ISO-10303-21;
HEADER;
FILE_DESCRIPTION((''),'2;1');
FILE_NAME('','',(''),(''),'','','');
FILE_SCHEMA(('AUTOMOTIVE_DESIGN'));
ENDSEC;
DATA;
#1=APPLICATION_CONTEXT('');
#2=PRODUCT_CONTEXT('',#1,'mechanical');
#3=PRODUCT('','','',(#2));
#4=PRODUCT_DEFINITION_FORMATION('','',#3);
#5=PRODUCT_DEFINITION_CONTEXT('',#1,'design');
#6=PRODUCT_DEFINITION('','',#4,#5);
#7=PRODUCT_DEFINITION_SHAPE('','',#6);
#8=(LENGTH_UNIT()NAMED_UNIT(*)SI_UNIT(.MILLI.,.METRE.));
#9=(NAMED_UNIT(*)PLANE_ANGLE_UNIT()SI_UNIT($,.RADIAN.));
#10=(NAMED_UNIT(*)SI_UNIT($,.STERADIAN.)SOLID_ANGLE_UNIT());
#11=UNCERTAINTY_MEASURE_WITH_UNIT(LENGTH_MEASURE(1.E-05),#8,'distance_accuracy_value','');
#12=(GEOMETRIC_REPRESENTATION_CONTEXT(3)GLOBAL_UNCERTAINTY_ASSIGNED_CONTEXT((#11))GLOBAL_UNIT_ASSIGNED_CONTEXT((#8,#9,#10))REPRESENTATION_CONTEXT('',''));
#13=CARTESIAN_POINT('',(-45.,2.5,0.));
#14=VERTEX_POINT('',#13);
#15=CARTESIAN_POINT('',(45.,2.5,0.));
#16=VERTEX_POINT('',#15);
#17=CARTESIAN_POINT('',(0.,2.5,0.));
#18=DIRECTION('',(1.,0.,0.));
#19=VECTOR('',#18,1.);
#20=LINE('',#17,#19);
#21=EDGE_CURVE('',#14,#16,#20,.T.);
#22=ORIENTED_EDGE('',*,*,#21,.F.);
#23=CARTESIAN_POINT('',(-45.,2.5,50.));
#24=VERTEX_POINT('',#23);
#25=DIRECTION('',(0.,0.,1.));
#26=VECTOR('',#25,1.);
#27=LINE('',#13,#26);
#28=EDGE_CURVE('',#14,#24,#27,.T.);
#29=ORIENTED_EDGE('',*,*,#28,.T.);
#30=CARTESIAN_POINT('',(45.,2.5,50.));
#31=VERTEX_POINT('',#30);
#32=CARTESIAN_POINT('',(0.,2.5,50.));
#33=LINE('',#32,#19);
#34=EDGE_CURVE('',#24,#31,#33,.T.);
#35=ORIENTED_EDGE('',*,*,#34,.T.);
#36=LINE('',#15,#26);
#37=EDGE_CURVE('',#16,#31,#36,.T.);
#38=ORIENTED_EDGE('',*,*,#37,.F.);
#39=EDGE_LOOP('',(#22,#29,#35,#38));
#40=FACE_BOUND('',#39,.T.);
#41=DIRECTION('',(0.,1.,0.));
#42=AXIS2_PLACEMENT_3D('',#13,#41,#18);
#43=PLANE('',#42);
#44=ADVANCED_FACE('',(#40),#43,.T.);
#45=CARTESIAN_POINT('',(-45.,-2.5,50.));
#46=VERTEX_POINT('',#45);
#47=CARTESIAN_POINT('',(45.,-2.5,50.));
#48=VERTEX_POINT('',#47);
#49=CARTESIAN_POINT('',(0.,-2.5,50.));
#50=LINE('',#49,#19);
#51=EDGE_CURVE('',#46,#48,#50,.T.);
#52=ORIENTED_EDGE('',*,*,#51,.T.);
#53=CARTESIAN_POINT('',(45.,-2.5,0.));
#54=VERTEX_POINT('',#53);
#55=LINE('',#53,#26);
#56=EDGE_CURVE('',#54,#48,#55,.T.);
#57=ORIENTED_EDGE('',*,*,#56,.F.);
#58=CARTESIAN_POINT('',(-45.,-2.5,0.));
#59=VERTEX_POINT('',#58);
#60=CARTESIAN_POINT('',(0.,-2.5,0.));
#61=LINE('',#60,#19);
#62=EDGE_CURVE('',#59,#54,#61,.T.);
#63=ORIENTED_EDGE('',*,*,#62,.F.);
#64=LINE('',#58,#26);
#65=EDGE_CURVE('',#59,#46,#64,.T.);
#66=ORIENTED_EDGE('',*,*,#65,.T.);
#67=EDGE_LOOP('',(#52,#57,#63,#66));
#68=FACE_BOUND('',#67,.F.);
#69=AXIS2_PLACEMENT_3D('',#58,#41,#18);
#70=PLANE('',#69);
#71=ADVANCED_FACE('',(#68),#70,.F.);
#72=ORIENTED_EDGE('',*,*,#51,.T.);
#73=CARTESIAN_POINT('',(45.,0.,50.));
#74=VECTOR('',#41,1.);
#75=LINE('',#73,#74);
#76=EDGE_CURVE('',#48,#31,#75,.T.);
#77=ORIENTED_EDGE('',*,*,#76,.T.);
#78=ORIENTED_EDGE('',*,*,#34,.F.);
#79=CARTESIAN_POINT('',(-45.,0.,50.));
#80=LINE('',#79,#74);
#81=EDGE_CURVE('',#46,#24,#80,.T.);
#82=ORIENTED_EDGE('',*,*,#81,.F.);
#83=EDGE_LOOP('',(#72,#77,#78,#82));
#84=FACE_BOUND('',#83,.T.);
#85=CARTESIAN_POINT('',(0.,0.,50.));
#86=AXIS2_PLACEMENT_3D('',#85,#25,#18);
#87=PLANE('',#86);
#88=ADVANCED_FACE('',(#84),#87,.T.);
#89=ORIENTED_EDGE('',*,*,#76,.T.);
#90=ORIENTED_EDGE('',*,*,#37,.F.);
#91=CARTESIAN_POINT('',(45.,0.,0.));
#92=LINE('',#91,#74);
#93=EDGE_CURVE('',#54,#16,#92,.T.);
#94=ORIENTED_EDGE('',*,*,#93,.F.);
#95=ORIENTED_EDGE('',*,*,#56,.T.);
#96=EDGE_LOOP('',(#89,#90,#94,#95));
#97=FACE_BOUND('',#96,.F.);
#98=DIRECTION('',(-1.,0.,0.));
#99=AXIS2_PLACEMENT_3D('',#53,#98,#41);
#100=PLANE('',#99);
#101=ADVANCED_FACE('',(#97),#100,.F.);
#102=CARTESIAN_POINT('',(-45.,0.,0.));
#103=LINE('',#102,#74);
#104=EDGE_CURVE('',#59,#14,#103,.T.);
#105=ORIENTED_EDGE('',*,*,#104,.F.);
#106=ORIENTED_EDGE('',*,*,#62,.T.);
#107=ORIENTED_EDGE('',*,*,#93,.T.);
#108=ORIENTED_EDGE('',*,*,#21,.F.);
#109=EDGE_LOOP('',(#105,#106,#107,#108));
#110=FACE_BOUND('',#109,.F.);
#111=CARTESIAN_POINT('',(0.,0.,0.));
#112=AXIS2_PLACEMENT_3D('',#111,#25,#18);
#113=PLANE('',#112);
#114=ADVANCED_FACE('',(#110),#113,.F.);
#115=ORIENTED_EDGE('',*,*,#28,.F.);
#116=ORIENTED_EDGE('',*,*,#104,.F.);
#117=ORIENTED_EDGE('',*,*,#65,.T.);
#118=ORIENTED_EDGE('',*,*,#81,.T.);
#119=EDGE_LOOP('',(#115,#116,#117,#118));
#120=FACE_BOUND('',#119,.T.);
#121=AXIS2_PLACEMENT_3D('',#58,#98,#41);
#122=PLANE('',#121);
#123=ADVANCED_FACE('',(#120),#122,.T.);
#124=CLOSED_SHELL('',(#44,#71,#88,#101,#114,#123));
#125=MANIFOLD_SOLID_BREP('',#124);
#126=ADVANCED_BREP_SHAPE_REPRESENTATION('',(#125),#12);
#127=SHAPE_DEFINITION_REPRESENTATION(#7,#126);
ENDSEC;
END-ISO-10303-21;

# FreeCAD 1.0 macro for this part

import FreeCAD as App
import Part
import Sketcher
from FreeCAD import Vector
Q = App.Units.Quantity

doc = App.newDocument("Part")
params = doc.addObject("Spreadsheet::Sheet", "Params")
for row, (alias, value) in enumerate([
    ("sketch1_width", "90 mm"),
    ("sketch1_height", "5 mm"),
    ("pad1_length", "50 mm"),
], start=1):
    params.set(f"A{row}", alias)
    params.set(f"B{row}", "=" + value)
    params.setAlias(f"B{row}", alias)

body = doc.addObject("PartDesign::Body", "Body")

# Sketch on XY plane
sketch1 = body.newObject("Sketcher::SketchObject", "Sketch")
sketch1.AttachmentSupport = (doc.getObject("XY_Plane"), [""])
sketch1.MapMode = "FlatFace"
sketch1.addGeometry([
    Part.LineSegment(Vector(-45, 2.5, 0), Vector(-45, -2.5, 0)),
    Part.LineSegment(Vector(-45, -2.5, 0), Vector(45, -2.5, 0)),
    Part.LineSegment(Vector(45, -2.5, 0), Vector(45, 2.5, 0)),
    Part.LineSegment(Vector(45, 2.5, 0), Vector(-45, 2.5, 0)),
], False)
sketch1.addConstraint([
    Sketcher.Constraint("Coincident", 0, 2, 1, 1),
    Sketcher.Constraint("Coincident", 1, 2, 2, 1),
    Sketcher.Constraint("Coincident", 2, 2, 3, 1),
    Sketcher.Constraint("Coincident", 3, 2, 0, 1),
    Sketcher.Constraint("Vertical", 0),
    Sketcher.Constraint("Horizontal", 1),
    Sketcher.Constraint("Vertical", 2),
    Sketcher.Constraint("Horizontal", 3),
    Sketcher.Constraint("Symmetric", 0, 2, 2, 2, -1, 1),
    Sketcher.Constraint("DistanceX", 1, 1, 1, 2, Q("90 mm")),
    Sketcher.Constraint("DistanceY", 0, 2, 0, 1, Q("5 mm")),
])
sketch1.setExpression("Constraints[9]", "Params.sketch1_width")
sketch1.setExpression("Constraints[10]", "Params.sketch1_height")
pad1 = body.newObject("PartDesign::Pad", "Pad")
pad1.Profile = sketch1
pad1.setExpression("Length", "Params.pad1_length")

doc.recompute()
